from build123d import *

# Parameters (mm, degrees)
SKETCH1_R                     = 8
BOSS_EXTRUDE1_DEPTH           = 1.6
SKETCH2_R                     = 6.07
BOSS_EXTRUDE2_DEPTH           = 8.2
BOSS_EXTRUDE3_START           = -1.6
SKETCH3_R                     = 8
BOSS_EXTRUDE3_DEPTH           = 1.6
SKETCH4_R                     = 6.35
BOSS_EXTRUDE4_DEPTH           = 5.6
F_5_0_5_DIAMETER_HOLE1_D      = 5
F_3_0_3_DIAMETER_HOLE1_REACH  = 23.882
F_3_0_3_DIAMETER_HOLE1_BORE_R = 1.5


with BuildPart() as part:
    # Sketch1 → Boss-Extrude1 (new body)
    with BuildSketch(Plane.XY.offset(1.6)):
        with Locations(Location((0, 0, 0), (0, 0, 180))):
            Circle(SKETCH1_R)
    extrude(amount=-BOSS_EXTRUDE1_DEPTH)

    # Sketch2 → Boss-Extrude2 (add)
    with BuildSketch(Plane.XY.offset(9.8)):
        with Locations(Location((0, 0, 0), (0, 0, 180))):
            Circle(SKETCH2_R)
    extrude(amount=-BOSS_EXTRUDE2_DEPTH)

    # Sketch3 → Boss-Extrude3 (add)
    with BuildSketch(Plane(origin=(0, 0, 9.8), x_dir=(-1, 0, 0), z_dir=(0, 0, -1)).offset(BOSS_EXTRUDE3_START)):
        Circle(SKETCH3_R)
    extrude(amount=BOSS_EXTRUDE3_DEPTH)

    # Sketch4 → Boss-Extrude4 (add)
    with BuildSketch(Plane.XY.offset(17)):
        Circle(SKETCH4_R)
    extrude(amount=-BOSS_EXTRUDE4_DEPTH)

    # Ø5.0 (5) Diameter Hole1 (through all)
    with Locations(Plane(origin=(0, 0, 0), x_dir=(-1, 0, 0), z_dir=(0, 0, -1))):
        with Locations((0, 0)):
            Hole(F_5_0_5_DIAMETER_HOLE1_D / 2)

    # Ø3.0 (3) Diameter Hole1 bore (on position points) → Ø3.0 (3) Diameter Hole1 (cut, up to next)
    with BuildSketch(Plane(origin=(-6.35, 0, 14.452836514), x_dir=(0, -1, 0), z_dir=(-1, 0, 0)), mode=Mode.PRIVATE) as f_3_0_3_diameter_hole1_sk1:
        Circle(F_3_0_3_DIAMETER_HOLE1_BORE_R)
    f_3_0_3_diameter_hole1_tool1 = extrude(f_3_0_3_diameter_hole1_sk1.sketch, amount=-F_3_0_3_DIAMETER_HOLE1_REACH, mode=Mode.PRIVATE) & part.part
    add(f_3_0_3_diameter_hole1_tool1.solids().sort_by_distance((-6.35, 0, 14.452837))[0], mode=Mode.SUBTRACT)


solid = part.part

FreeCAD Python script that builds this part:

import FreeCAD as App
import Part
import Sketcher
from FreeCAD import Vector
Q = App.Units.Quantity

doc = App.newDocument("Part")
body = doc.addObject("PartDesign::Body", "Body")

# Sketch on XY plane
sketch1 = doc.addObject("Sketcher::SketchObject", "Sketch")
body.addObject(sketch1)
sketch1.AttachmentSupport = (doc.XY_Plane, [""])
sketch1.MapMode = "FlatFace"
sketch1.AttachmentOffset = App.Placement(Vector(0, 0, 1.6), App.Rotation())
sketch1.addGeometry(Part.Circle(Vector(0, 0, 0), Vector(0, 0, 1), 8), False)
sketch1.addConstraint(Sketcher.Constraint("Coincident", 0, 3, -1, 1))
sketch1.addConstraint(Sketcher.Constraint("Diameter", 0, Q("16 mm")))
pad1 = doc.addObject("PartDesign::Pad", "Pad")
body.addObject(pad1)
pad1.Profile = sketch1
pad1.Length = 1.6
pad1.Reversed = True

# Sketch on XY plane
sketch2 = doc.addObject("Sketcher::SketchObject", "Sketch001")
body.addObject(sketch2)
sketch2.AttachmentSupport = (doc.XY_Plane, [""])
sketch2.MapMode = "FlatFace"
sketch2.AttachmentOffset = App.Placement(Vector(0, 0, 9.8), App.Rotation())
sketch2.addGeometry(Part.Circle(Vector(0, 0, 0), Vector(0, 0, 1), 6), False)
sketch2.addConstraint(Sketcher.Constraint("Coincident", 0, 3, -1, 1))
sketch2.addConstraint(Sketcher.Constraint("Diameter", 0, Q("12.14 mm")))
pad2 = doc.addObject("PartDesign::Pad", "Pad001")
body.addObject(pad2)
pad2.Profile = sketch2
pad2.Length = 8.2
pad2.Reversed = True

# Sketch on XY plane
sketch3 = doc.addObject("Sketcher::SketchObject", "Sketch002")
body.addObject(sketch3)
sketch3.AttachmentSupport = (doc.XY_Plane, [""])
sketch3.MapMode = "FlatFace"
sketch3.AttachmentOffset = App.Placement(Vector(0, 0, 11.4), App.Rotation())
sketch3.addGeometry(Part.Circle(Vector(0, 0, 0), Vector(0, 0, 1), 8), False)
sketch3.addConstraint(Sketcher.Constraint("Coincident", 0, 3, -1, 1))
sketch3.addConstraint(Sketcher.Constraint("Diameter", 0, Q("16 mm")))
pad3 = doc.addObject("PartDesign::Pad", "Pad002")
body.addObject(pad3)
pad3.Profile = sketch3
pad3.Length = 1.6
pad3.Reversed = True

# Sketch on XY plane
sketch4 = doc.addObject("Sketcher::SketchObject", "Sketch003")
body.addObject(sketch4)
sketch4.AttachmentSupport = (doc.XY_Plane, [""])
sketch4.MapMode = "FlatFace"
sketch4.AttachmentOffset = App.Placement(Vector(0, 0, 17), App.Rotation())
sketch4.addGeometry(Part.Circle(Vector(0, 0, 0), Vector(0, 0, 1), 6), False)
sketch4.addConstraint(Sketcher.Constraint("Coincident", 0, 3, -1, 1))
sketch4.addConstraint(Sketcher.Constraint("Diameter", 0, Q("12.7 mm")))
pad4 = doc.addObject("PartDesign::Pad", "Pad003")
body.addObject(pad4)
pad4.Profile = sketch4
pad4.Length = 5.6
pad4.Reversed = True

# Sketch on XY plane
sketch5 = doc.addObject("Sketcher::SketchObject", "Sketch004")
body.addObject(sketch5)
sketch5.AttachmentSupport = (doc.XY_Plane, [""])
sketch5.MapMode = "FlatFace"
sketch5.addGeometry(Part.Circle(Vector(0, 0, 0), Vector(0, 0, 1), 2.5), False)
sketch5.addConstraint(Sketcher.Constraint("Coincident", 0, 3, -1, 1))
sketch5.addConstraint(Sketcher.Constraint("Diameter", 0, Q("5 mm")))
doc.recompute()
hole = doc.addObject("PartDesign::Hole", "Hole")
body.addObject(hole)
hole.Profile = sketch5
hole.ThreadType = "None"
hole.Diameter = 5
hole.DepthType = "ThroughAll"
hole.Reversed = True

# Sketch on YZ plane
sketch6 = doc.addObject("Sketcher::SketchObject", "Sketch005")
body.addObject(sketch6)
sketch6.AttachmentSupport = (doc.YZ_Plane, [""])
sketch6.MapMode = "FlatFace"
sketch6.AttachmentOffset = App.Placement(Vector(0, 0, -6.35), App.Rotation())
sketch6.addGeometry(Part.Circle(Vector(0, 14.5, 0), Vector(0, 0, 1), 1.5), False)
sketch6.addConstraint(Sketcher.Constraint("PointOnObject", 0, 3, -2))
sketch6.addConstraint(Sketcher.Constraint("Diameter", 0, Q("3 mm")))
sketch6.addConstraint(Sketcher.Constraint("DistanceY", -1, 1, 0, 3, Q("14.452837 mm")))
pocket1 = doc.addObject("PartDesign::Pocket", "Pocket")
body.addObject(pocket1)
pocket1.Profile = sketch6
pocket1.Length = 4.35
pocket1.Reversed = True

doc.recompute()
